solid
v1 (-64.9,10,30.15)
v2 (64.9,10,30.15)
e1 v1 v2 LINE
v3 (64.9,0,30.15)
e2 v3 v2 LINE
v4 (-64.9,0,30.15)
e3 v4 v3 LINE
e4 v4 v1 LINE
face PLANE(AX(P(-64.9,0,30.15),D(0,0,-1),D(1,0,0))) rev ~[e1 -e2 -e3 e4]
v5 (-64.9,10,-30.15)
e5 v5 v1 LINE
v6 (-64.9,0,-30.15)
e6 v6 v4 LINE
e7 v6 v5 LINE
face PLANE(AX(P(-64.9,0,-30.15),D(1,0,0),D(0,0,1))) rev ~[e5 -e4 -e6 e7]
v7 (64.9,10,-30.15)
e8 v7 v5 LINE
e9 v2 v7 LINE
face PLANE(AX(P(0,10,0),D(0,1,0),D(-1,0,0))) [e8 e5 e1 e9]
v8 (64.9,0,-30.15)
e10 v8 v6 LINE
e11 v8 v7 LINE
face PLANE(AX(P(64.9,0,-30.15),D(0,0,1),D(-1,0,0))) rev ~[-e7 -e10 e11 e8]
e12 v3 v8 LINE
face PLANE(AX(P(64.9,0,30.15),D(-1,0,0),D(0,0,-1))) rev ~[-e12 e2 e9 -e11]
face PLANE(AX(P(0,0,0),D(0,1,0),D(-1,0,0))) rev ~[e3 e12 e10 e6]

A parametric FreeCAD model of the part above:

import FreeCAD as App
import Part
import Sketcher

V = App.Vector


def add_polygon(sketch, points):
    """Adds a closed chain of lines whose ends are joined by coincident constraints."""
    first, n = sketch.GeometryCount, len(points)
    for a, b in zip(points, points[1:] + points[:1]):
        sketch.addGeometry(Part.LineSegment(App.Vector(*a, 0), App.Vector(*b, 0)), False)
    for i in range(n):
        sketch.addConstraint(Sketcher.Constraint("Coincident", first + i, 2, first + (i + 1) % n, 1))

doc = App.newDocument("Part")
body = doc.addObject("PartDesign::Body", "Body")

sketch1 = doc.addObject("Sketcher::SketchObject", "Sketch")
body.addObject(sketch1)
sketch1.AttachmentSupport = (doc.XZ_Plane, [""])
sketch1.MapMode = "FlatFace"
add_polygon(sketch1, [(-65, -30), (-65, 30), (65, 30), (65, -30)])
sketch1.addConstraint([
    Sketcher.Constraint("Vertical", 0),
    Sketcher.Constraint("Horizontal", 1),
    Sketcher.Constraint("Vertical", 2),
    Sketcher.Constraint("Horizontal", 3),
    Sketcher.Constraint("Symmetric", 0, 2, 2, 2, -1, 1),
    Sketcher.Constraint("DistanceX", 1, 1, 1, 2, 129.8),
    Sketcher.Constraint("DistanceY", 0, 1, 0, 2, 60.3),
])
pad1 = doc.addObject("PartDesign::Pad", "Pad")
body.addObject(pad1)
pad1.Profile = sketch1
pad1.Length = 10
pad1.Reversed = True

doc.recompute()
